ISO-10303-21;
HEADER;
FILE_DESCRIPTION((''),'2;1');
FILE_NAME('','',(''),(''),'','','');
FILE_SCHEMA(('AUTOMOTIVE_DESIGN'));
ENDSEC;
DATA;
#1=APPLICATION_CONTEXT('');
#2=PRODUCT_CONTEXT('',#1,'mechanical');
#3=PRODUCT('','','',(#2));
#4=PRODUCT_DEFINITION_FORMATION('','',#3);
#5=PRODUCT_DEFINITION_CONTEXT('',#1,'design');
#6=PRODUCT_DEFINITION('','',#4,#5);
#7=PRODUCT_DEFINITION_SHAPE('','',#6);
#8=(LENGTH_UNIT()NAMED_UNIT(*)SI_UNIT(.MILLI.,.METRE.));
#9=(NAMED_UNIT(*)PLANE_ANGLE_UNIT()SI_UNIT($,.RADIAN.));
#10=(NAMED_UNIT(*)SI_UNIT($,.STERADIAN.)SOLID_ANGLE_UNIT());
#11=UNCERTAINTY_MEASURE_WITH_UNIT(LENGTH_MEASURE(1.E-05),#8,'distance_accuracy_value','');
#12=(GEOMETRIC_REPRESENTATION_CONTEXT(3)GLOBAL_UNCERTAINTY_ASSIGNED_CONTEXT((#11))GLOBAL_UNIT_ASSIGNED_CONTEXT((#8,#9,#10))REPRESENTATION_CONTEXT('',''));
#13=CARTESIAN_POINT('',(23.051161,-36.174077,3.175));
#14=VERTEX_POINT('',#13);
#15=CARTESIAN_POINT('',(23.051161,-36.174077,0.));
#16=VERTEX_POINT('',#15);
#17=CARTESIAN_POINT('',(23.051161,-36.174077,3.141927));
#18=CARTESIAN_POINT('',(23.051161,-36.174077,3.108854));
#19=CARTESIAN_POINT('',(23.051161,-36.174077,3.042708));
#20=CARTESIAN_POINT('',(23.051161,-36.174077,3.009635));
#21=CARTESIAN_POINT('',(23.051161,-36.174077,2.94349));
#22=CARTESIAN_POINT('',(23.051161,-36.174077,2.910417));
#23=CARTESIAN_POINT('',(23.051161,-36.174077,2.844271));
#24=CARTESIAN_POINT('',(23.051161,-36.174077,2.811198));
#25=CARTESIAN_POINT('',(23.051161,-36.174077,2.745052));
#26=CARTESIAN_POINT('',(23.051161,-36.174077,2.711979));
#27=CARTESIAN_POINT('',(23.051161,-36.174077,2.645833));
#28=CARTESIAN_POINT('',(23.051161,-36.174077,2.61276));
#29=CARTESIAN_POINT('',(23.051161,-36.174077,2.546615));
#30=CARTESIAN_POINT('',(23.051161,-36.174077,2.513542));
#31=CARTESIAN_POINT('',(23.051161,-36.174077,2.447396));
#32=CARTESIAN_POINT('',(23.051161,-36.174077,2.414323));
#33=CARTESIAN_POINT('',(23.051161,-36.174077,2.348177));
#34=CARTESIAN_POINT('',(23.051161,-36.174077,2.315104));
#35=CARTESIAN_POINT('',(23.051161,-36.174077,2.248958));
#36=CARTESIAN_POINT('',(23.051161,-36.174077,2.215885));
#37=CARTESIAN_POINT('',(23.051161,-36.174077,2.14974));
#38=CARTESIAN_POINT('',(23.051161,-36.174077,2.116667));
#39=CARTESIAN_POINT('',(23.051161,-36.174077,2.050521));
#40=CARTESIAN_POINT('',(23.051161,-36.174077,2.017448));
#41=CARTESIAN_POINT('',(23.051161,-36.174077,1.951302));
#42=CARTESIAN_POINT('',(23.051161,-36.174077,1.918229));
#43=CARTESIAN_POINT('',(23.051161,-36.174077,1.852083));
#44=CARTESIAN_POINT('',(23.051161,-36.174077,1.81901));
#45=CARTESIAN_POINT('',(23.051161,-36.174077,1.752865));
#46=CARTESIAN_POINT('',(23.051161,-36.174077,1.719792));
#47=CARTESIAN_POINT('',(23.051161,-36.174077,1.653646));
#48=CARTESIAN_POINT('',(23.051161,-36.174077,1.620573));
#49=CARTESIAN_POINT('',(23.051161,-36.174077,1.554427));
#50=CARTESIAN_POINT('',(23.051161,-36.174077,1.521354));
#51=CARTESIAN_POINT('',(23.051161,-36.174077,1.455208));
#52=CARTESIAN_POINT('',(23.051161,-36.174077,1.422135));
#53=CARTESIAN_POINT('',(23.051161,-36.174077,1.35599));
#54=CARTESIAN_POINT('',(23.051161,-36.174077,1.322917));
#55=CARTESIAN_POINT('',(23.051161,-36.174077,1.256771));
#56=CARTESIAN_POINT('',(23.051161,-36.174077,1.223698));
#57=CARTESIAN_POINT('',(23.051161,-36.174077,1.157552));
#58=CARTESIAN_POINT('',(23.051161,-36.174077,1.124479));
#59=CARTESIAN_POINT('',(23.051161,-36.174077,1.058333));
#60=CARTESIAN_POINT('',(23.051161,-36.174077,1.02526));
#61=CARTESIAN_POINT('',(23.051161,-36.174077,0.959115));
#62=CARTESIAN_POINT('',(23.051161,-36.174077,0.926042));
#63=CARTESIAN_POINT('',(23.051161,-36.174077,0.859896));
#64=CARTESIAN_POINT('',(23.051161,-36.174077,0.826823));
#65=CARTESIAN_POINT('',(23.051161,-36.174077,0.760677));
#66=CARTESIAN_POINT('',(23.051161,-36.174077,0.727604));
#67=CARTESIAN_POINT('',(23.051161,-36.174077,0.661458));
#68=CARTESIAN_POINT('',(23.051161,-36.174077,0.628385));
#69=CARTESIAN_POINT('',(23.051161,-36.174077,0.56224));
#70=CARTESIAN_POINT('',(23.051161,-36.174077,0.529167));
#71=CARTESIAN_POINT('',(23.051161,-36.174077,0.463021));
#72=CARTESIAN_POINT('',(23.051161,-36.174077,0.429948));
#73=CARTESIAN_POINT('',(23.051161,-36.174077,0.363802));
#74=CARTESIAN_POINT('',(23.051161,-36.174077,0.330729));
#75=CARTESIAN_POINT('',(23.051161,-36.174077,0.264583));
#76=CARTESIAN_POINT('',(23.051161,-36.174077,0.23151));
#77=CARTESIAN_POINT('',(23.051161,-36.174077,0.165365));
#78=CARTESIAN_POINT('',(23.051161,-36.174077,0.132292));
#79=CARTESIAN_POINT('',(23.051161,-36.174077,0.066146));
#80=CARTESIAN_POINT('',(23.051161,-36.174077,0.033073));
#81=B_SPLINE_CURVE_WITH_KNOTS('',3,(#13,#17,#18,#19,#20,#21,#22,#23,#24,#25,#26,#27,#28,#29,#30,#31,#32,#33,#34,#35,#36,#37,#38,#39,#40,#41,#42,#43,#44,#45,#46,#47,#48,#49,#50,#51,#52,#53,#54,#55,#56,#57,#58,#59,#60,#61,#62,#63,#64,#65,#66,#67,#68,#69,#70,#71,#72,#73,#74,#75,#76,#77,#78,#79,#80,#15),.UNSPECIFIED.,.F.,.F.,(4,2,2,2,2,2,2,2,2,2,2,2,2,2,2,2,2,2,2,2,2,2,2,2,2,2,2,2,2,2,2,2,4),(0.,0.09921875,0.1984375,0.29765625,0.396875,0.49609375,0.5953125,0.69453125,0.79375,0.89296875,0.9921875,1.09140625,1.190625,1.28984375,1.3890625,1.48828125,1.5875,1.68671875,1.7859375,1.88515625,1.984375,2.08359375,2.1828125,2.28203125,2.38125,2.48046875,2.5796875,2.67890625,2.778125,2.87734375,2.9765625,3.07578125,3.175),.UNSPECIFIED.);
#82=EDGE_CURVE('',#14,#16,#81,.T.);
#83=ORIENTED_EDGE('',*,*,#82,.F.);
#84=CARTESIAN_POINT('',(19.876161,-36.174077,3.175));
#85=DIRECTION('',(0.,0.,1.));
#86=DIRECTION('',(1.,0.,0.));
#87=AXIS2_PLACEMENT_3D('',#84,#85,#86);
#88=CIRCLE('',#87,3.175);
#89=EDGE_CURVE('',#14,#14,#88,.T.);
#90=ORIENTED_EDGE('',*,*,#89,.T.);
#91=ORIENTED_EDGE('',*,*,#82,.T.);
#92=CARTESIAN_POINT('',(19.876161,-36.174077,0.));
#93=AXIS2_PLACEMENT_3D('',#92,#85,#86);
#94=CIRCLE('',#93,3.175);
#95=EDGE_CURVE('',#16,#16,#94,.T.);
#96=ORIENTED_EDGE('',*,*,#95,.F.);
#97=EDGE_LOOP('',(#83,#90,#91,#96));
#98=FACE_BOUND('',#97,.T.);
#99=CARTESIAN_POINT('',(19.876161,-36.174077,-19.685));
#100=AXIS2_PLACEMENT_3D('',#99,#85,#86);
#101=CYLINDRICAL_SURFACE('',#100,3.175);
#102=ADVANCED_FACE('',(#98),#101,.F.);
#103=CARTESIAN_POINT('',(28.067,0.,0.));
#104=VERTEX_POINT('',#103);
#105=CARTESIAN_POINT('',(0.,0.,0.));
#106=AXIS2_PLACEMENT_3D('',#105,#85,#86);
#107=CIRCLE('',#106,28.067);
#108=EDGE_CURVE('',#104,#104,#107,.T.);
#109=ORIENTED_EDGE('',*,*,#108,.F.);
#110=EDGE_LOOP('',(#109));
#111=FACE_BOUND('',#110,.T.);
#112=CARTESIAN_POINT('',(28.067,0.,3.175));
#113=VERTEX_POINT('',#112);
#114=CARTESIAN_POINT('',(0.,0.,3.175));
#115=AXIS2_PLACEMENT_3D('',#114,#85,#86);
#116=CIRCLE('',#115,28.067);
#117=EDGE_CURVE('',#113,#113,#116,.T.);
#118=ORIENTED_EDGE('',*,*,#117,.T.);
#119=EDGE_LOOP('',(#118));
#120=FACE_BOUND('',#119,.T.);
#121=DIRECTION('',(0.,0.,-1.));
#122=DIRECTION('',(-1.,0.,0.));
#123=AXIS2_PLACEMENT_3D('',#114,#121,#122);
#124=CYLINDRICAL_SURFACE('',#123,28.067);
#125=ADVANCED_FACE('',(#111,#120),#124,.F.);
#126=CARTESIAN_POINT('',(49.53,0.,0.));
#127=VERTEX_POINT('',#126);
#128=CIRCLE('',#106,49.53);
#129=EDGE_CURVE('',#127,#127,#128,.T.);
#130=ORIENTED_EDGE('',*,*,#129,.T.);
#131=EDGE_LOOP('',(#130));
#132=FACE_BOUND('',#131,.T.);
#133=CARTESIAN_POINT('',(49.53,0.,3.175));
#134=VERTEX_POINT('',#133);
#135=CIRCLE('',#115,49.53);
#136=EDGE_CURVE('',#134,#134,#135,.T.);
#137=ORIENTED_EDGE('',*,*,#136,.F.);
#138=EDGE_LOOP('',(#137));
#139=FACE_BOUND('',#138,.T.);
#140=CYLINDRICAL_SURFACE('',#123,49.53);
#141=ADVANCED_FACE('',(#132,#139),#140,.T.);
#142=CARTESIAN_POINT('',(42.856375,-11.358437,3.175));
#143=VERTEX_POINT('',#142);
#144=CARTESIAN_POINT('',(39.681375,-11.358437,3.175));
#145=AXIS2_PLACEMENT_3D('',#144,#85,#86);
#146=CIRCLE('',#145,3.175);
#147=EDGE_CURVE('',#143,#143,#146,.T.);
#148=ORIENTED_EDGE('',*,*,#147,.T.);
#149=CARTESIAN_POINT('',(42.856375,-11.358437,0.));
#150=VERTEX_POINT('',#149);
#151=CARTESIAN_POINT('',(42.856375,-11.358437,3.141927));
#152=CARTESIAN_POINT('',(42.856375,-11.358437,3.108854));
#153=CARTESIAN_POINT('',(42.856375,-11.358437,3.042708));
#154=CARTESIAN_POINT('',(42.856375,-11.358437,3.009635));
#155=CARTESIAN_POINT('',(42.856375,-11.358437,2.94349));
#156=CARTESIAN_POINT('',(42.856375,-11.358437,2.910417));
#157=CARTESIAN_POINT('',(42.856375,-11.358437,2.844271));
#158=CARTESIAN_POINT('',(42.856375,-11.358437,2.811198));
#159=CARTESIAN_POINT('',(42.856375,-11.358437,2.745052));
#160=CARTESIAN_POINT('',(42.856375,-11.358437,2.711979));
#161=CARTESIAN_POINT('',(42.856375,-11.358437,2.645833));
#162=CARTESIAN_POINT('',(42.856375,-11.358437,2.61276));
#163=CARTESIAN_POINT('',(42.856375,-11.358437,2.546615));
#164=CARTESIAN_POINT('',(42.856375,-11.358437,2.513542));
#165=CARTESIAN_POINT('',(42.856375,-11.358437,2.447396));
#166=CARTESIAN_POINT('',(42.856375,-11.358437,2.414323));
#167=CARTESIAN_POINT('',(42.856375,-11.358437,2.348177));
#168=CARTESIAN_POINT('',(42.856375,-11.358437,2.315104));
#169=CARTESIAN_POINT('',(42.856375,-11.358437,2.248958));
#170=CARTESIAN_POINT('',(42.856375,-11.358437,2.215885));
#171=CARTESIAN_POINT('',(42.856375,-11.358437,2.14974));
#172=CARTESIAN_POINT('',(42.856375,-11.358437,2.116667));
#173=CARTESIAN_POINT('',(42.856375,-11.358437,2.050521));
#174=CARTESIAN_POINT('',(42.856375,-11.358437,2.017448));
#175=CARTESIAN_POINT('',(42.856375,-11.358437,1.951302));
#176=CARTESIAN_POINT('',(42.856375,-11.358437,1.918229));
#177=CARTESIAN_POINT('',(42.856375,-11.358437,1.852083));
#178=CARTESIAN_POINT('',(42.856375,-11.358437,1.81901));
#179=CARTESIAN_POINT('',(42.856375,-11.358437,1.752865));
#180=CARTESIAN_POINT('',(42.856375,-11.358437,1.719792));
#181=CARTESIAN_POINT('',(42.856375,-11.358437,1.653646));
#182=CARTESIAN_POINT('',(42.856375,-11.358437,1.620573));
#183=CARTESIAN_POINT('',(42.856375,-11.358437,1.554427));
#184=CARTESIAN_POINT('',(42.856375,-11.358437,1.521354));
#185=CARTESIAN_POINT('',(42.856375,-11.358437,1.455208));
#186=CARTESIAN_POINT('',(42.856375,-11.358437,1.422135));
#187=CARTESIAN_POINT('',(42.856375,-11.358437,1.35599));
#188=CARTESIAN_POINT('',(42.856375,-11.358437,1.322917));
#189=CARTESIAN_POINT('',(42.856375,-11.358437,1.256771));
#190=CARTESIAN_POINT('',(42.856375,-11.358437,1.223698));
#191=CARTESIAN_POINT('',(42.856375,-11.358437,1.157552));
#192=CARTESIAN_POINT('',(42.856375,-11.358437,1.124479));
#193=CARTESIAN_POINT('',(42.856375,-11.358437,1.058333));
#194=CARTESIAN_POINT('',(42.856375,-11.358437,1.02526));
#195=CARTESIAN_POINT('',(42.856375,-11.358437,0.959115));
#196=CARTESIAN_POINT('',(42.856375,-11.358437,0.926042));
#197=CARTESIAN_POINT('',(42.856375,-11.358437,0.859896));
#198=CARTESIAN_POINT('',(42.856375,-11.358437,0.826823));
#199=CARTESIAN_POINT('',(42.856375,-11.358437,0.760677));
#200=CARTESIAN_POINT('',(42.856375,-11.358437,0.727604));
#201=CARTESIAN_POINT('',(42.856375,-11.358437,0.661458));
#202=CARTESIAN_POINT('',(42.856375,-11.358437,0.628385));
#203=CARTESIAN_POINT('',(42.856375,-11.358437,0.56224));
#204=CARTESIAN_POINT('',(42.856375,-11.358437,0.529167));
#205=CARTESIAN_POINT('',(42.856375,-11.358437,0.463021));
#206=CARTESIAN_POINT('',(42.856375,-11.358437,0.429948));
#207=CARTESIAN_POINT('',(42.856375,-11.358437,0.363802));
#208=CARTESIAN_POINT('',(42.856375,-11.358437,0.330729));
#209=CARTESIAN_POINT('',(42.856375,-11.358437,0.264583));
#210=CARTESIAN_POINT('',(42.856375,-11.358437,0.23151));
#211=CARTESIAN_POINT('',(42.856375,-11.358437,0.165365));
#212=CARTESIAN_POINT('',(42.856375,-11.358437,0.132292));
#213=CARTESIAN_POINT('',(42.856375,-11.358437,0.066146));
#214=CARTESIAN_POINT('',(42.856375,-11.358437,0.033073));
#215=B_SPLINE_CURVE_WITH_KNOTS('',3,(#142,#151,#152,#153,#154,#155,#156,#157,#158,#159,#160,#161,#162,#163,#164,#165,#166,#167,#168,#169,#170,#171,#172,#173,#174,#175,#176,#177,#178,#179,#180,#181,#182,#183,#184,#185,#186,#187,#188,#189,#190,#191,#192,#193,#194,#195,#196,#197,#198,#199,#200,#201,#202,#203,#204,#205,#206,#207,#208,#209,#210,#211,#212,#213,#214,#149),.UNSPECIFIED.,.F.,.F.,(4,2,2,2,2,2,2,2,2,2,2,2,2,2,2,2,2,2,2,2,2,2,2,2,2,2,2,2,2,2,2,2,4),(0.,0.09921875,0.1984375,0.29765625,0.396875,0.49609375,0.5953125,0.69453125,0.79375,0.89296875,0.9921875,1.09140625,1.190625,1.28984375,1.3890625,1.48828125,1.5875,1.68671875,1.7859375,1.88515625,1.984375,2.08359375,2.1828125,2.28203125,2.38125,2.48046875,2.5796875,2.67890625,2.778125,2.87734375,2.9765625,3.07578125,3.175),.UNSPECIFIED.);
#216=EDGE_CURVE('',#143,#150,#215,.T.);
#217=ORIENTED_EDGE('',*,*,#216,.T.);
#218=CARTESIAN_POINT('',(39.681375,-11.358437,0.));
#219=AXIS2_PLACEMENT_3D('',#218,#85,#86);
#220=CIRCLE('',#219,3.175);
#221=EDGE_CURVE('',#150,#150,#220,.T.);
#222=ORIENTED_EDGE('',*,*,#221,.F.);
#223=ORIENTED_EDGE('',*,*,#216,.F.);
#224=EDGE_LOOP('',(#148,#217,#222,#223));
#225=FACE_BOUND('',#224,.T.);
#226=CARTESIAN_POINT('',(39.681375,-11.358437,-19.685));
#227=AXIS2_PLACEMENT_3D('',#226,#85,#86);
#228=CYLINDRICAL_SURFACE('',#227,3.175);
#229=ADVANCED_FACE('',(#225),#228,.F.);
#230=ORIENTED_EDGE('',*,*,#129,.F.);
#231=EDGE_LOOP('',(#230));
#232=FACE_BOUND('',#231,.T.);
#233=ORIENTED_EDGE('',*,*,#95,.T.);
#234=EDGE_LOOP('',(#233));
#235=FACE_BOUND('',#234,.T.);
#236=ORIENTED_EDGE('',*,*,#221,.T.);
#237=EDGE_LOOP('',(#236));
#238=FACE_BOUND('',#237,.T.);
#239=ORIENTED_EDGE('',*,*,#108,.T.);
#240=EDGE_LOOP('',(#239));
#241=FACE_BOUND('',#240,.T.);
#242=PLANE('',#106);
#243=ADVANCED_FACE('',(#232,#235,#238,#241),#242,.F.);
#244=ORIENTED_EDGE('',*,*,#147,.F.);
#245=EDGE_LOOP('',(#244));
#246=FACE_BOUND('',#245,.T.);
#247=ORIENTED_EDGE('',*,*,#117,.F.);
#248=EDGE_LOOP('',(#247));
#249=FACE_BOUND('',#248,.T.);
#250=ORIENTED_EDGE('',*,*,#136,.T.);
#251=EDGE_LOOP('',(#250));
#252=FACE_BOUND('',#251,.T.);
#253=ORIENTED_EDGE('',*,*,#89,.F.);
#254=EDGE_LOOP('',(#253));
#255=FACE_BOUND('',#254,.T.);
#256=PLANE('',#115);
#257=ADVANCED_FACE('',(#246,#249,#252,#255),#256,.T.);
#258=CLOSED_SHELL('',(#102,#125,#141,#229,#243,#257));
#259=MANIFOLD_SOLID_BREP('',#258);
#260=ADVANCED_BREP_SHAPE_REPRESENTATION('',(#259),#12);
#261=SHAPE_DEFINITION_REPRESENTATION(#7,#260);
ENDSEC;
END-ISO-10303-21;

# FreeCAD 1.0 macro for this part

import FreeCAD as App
import Part
import Sketcher

V = App.Vector
Q = App.Units.Quantity

doc = App.newDocument("Part")
params = doc.addObject("Spreadsheet::Sheet", "Params")
for row, (alias, value) in enumerate([
    ("sketch1_diameter", "3.9 in"),
    ("sketch1_diameter2", "2.21 in"),
    ("pad1_length", "0.125 in"),
    ("sketch2_diameter", "0.25 in"),
    ("pocket1_length", "0.9 in"),
], start=1):
    params.set(f"A{row}", alias)
    params.set(f"B{row}", "=" + value)
    params.setAlias(f"B{row}", alias)

body = doc.addObject("PartDesign::Body", "Body")

sketch1 = body.newObject("Sketcher::SketchObject", "Sketch")
sketch1.AttachmentSupport = (doc.getObject("XY_Plane"), [""])
sketch1.MapMode = "FlatFace"
sketch1.addGeometry(Part.Circle(V(0, 0, 0), V(0, 0, 1), 50), False)
sketch1.addGeometry(Part.Circle(V(0, 0, 0), V(0, 0, 1), 28), False)
sketch1.addConstraint(Sketcher.Constraint("Coincident", 0, 3, -1, 1))
sketch1.addConstraint(Sketcher.Constraint("Coincident", 1, 3, -1, 1))
sketch1.addConstraint(Sketcher.Constraint("Diameter", 0, Q("3.9 in")))
sketch1.addConstraint(Sketcher.Constraint("Diameter", 1, Q("2.21 in")))
sketch1.setExpression("Constraints[2]", "Params.sketch1_diameter")
sketch1.setExpression("Constraints[3]", "Params.sketch1_diameter2")
pad1 = body.newObject("PartDesign::Pad", "Pad")
pad1.Profile = sketch1
pad1.setExpression("Length", "Params.pad1_length")

sketch2 = body.newObject("Sketcher::SketchObject", "Sketch001")
sketch2.AttachmentSupport = (doc.getObject("XY_Plane"), [""])
sketch2.MapMode = "FlatFace"
sketch2.AttachmentOffset = App.Placement(V(0, 0, 0.125 * 25.4), App.Rotation())
sketch2.addGeometry(Part.Circle(V(19.9, -36.2, 0), V(0, 0, 1), 3.2), False)
sketch2.addGeometry(Part.Circle(V(39.7, -11.4, 0), V(0, 0, 1), 3.2), False)
sketch2.addConstraint(Sketcher.Constraint("Equal", 0, 1))
sketch2.addConstraint(Sketcher.Constraint("Diameter", 0, Q("0.25 in")))
sketch2.addConstraint(Sketcher.Constraint("DistanceX", -1, 1, 0, 3, 19.876162))
sketch2.addConstraint(Sketcher.Constraint("DistanceY", 0, 3, 1, 3, 24.81564))
sketch2.addConstraint(Sketcher.Constraint("DistanceY", 0, 3, -1, 1, 36.174077))
sketch2.addConstraint(Sketcher.Constraint("DistanceX", -1, 1, 1, 3, 39.681376))
sketch2.setExpression("Constraints[1]", "Params.sketch2_diameter")
pocket1 = body.newObject("PartDesign::Pocket", "Pocket")
pocket1.Profile = sketch2
pocket1.setExpression("Length", "Params.pocket1_length")

doc.recompute()
